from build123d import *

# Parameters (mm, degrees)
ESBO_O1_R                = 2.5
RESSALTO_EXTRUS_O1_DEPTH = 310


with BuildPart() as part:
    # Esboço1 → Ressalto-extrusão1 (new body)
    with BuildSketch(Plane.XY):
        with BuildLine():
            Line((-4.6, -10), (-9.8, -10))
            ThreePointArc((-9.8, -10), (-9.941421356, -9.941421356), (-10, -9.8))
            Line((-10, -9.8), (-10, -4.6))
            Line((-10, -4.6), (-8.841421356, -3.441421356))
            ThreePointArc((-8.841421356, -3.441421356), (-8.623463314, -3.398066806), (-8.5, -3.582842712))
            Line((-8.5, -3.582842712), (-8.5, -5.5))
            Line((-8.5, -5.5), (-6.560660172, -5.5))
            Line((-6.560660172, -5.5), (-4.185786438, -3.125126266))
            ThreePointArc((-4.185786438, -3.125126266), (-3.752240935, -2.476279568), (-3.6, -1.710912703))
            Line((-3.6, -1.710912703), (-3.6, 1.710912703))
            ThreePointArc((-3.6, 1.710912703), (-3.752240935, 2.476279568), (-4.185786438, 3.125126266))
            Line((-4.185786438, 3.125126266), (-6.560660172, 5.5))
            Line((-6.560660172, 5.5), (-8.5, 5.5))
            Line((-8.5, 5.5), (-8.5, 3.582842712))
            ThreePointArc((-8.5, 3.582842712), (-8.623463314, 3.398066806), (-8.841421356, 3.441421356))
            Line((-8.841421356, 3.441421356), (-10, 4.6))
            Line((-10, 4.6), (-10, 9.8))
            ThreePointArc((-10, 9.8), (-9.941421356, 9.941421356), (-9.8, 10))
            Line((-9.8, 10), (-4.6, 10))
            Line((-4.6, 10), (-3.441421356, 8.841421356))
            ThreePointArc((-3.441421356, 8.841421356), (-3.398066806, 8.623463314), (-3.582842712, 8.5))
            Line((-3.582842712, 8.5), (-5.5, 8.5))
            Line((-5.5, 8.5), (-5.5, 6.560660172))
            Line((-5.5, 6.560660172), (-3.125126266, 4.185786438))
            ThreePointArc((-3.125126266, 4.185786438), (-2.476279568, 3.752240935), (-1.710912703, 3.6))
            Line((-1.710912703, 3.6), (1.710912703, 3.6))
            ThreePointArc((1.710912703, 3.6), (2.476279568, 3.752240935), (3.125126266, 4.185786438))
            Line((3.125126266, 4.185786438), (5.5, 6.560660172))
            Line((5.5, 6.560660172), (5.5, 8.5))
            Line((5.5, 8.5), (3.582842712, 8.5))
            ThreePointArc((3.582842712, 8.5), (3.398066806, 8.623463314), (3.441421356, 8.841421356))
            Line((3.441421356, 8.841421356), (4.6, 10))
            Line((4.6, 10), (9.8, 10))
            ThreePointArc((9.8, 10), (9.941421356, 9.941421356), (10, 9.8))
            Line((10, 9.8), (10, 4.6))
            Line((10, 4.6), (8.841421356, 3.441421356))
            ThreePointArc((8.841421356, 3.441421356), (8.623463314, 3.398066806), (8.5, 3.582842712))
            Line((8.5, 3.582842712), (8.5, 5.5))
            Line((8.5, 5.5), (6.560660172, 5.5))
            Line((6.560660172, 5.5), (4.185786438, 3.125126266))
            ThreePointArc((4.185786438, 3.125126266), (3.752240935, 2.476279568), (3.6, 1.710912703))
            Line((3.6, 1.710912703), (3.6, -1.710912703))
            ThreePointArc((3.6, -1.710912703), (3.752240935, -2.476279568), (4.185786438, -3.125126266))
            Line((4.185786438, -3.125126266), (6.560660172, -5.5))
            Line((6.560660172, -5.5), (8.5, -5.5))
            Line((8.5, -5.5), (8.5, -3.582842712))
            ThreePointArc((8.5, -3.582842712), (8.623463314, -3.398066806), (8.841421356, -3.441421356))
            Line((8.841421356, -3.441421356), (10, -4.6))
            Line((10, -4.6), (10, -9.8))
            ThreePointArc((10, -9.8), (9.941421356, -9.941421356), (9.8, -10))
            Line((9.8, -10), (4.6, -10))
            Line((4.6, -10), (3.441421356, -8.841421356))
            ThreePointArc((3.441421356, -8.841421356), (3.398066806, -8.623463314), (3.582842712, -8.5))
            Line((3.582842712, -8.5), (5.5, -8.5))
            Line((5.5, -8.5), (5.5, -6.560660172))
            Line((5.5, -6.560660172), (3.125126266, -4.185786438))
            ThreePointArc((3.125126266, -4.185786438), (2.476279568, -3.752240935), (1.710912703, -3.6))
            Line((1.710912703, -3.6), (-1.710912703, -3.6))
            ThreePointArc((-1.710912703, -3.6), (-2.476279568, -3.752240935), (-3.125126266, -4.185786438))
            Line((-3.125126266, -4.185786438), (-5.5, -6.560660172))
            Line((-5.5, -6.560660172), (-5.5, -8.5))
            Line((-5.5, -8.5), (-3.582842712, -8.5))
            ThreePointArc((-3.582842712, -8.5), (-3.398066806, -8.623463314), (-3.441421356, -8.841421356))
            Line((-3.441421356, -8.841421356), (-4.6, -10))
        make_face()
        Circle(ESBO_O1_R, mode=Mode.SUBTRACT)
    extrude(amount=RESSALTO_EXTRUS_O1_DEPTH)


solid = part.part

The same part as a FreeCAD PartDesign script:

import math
import FreeCAD as App
import Part
import Sketcher
Q = App.Units.Quantity

doc = App.newDocument("Part")
params = doc.addObject("Spreadsheet::Sheet", "Params")
for row, (alias, value) in enumerate([
    ("sketch1_diameter", "5 mm"),
    ("sketch1_radius", "2 mm"),
    ("sketch1_radius2", "0.2 mm"),
    ("sketch1_width", "5.2 mm"),
    ("pad1_length", "310 mm"),
], start=1):
    params.set(f"A{row}", alias)
    params.set(f"B{row}", "=" + value)
    params.setAlias(f"B{row}", alias)

body = doc.addObject("PartDesign::Body", "Body")

# Sketch on XY plane
sketch1 = body.newObject("Sketcher::SketchObject", "Sketch")
sketch1.AttachmentSupport = (doc.getObject("XY_Plane"), [""])
sketch1.MapMode = "FlatFace"
sketch1.addGeometry([
    Part.LineSegment(App.Vector(-9.8, -10, 0), App.Vector(-4.6, -10, 0)),  # 0
    Part.LineSegment(App.Vector(-4.6, -10, 0), App.Vector(-3.44, -8.84, 0)),  # 1
    Part.ArcOfCircle(Part.Circle(App.Vector(-3.58, -8.7, 0), App.Vector(0, 0, 1), 0.2), math.radians(-45), math.radians(90)),  # 2
    Part.LineSegment(App.Vector(-3.58, -8.5, 0), App.Vector(-5.5, -8.5, 0)),  # 3
    Part.LineSegment(App.Vector(-5.5, -8.5, 0), App.Vector(-5.5, -6.56, 0)),  # 4
    Part.LineSegment(App.Vector(-5.5, -6.56, 0), App.Vector(-3.13, -4.19, 0)),  # 5
    Part.ArcOfCircle(Part.Circle(App.Vector(-1.71, -5.6, 0), App.Vector(0, 0, 1), 2), math.radians(90), math.radians(135)),  # 6
    Part.LineSegment(App.Vector(-1.71, -3.6, 0), App.Vector(1.71, -3.6, 0)),  # 7
    Part.ArcOfCircle(Part.Circle(App.Vector(1.71, -5.6, 0), App.Vector(0, 0, 1), 2), math.radians(45), math.radians(90)),  # 8
    Part.LineSegment(App.Vector(3.13, -4.19, 0), App.Vector(5.5, -6.56, 0)),  # 9
    Part.LineSegment(App.Vector(5.5, -6.56, 0), App.Vector(5.5, -8.5, 0)),  # 10
    Part.LineSegment(App.Vector(5.5, -8.5, 0), App.Vector(3.58, -8.5, 0)),  # 11
    Part.ArcOfCircle(Part.Circle(App.Vector(3.58, -8.7, 0), App.Vector(0, 0, 1), 0.2), math.radians(90), math.radians(225)),  # 12
    Part.LineSegment(App.Vector(3.44, -8.84, 0), App.Vector(4.6, -10, 0)),  # 13
    Part.LineSegment(App.Vector(4.6, -10, 0), App.Vector(9.8, -10, 0)),  # 14
    Part.ArcOfCircle(Part.Circle(App.Vector(9.8, -9.8, 0), App.Vector(0, 0, 1), 0.2), math.radians(-90), math.radians(0)),  # 15
    Part.LineSegment(App.Vector(10, -9.8, 0), App.Vector(10, -4.6, 0)),  # 16
    Part.LineSegment(App.Vector(10, -4.6, 0), App.Vector(8.84, -3.44, 0)),  # 17
    Part.ArcOfCircle(Part.Circle(App.Vector(8.7, -3.58, 0), App.Vector(0, 0, 1), 0.2), math.radians(45), math.radians(180)),  # 18
    Part.LineSegment(App.Vector(8.5, -3.58, 0), App.Vector(8.5, -5.5, 0)),  # 19
    Part.LineSegment(App.Vector(8.5, -5.5, 0), App.Vector(6.56, -5.5, 0)),  # 20
    Part.LineSegment(App.Vector(6.56, -5.5, 0), App.Vector(4.19, -3.13, 0)),  # 21
    Part.ArcOfCircle(Part.Circle(App.Vector(5.6, -1.71, 0), App.Vector(0, 0, 1), 2), math.radians(180), math.radians(225)),  # 22
    Part.LineSegment(App.Vector(3.6, -1.71, 0), App.Vector(3.6, 1.71, 0)),  # 23
    Part.ArcOfCircle(Part.Circle(App.Vector(5.6, 1.71, 0), App.Vector(0, 0, 1), 2), math.radians(135), math.radians(180)),  # 24
    Part.LineSegment(App.Vector(4.19, 3.13, 0), App.Vector(6.56, 5.5, 0)),  # 25
    Part.LineSegment(App.Vector(6.56, 5.5, 0), App.Vector(8.5, 5.5, 0)),  # 26
    Part.LineSegment(App.Vector(8.5, 5.5, 0), App.Vector(8.5, 3.58, 0)),  # 27
    Part.ArcOfCircle(Part.Circle(App.Vector(8.7, 3.58, 0), App.Vector(0, 0, 1), 0.2), math.radians(-180), math.radians(-45)),  # 28
    Part.LineSegment(App.Vector(8.84, 3.44, 0), App.Vector(10, 4.6, 0)),  # 29
    Part.LineSegment(App.Vector(10, 4.6, 0), App.Vector(10, 9.8, 0)),  # 30
    Part.ArcOfCircle(Part.Circle(App.Vector(9.8, 9.8, 0), App.Vector(0, 0, 1), 0.2), math.radians(0), math.radians(90)),  # 31
    Part.LineSegment(App.Vector(9.8, 10, 0), App.Vector(4.6, 10, 0)),  # 32
    Part.LineSegment(App.Vector(4.6, 10, 0), App.Vector(3.44, 8.84, 0)),  # 33
    Part.ArcOfCircle(Part.Circle(App.Vector(3.58, 8.7, 0), App.Vector(0, 0, 1), 0.2), math.radians(135), math.radians(270)),  # 34
    Part.LineSegment(App.Vector(3.58, 8.5, 0), App.Vector(5.5, 8.5, 0)),  # 35
    Part.LineSegment(App.Vector(5.5, 8.5, 0), App.Vector(5.5, 6.56, 0)),  # 36
    Part.LineSegment(App.Vector(5.5, 6.56, 0), App.Vector(3.13, 4.19, 0)),  # 37
    Part.ArcOfCircle(Part.Circle(App.Vector(1.71, 5.6, 0), App.Vector(0, 0, 1), 2), math.radians(-90), math.radians(-45)),  # 38
    Part.LineSegment(App.Vector(1.71, 3.6, 0), App.Vector(-1.71, 3.6, 0)),  # 39
    Part.ArcOfCircle(Part.Circle(App.Vector(-1.71, 5.6, 0), App.Vector(0, 0, 1), 2), math.radians(-135), math.radians(-90)),  # 40
    Part.LineSegment(App.Vector(-3.13, 4.19, 0), App.Vector(-5.5, 6.56, 0)),  # 41
    Part.LineSegment(App.Vector(-5.5, 6.56, 0), App.Vector(-5.5, 8.5, 0)),  # 42
    Part.LineSegment(App.Vector(-5.5, 8.5, 0), App.Vector(-3.58, 8.5, 0)),  # 43
    Part.ArcOfCircle(Part.Circle(App.Vector(-3.58, 8.7, 0), App.Vector(0, 0, 1), 0.2), math.radians(-90), math.radians(45)),  # 44
    Part.LineSegment(App.Vector(-3.44, 8.84, 0), App.Vector(-4.6, 10, 0)),  # 45
    Part.LineSegment(App.Vector(-4.6, 10, 0), App.Vector(-9.8, 10, 0)),  # 46
    Part.ArcOfCircle(Part.Circle(App.Vector(-9.8, 9.8, 0), App.Vector(0, 0, 1), 0.2), math.radians(90), math.radians(180)),  # 47
    Part.LineSegment(App.Vector(-10, 9.8, 0), App.Vector(-10, 4.6, 0)),  # 48
    Part.LineSegment(App.Vector(-10, 4.6, 0), App.Vector(-8.84, 3.44, 0)),  # 49
    Part.ArcOfCircle(Part.Circle(App.Vector(-8.7, 3.58, 0), App.Vector(0, 0, 1), 0.2), math.radians(-135), math.radians(0)),  # 50
    Part.LineSegment(App.Vector(-8.5, 3.58, 0), App.Vector(-8.5, 5.5, 0)),  # 51
    Part.LineSegment(App.Vector(-8.5, 5.5, 0), App.Vector(-6.56, 5.5, 0)),  # 52
    Part.LineSegment(App.Vector(-6.56, 5.5, 0), App.Vector(-4.19, 3.13, 0)),  # 53
    Part.ArcOfCircle(Part.Circle(App.Vector(-5.6, 1.71, 0), App.Vector(0, 0, 1), 2), math.radians(0), math.radians(45)),  # 54
    Part.LineSegment(App.Vector(-3.6, 1.71, 0), App.Vector(-3.6, -1.71, 0)),  # 55
    Part.ArcOfCircle(Part.Circle(App.Vector(-5.6, -1.71, 0), App.Vector(0, 0, 1), 2), math.radians(-45), math.radians(0)),  # 56
    Part.LineSegment(App.Vector(-4.19, -3.13, 0), App.Vector(-6.56, -5.5, 0)),  # 57
    Part.LineSegment(App.Vector(-6.56, -5.5, 0), App.Vector(-8.5, -5.5, 0)),  # 58
    Part.LineSegment(App.Vector(-8.5, -5.5, 0), App.Vector(-8.5, -3.58, 0)),  # 59
    Part.ArcOfCircle(Part.Circle(App.Vector(-8.7, -3.58, 0), App.Vector(0, 0, 1), 0.2), math.radians(0), math.radians(135)),  # 60
    Part.LineSegment(App.Vector(-8.84, -3.44, 0), App.Vector(-10, -4.6, 0)),  # 61
    Part.LineSegment(App.Vector(-10, -4.6, 0), App.Vector(-10, -9.8, 0)),  # 62
    Part.ArcOfCircle(Part.Circle(App.Vector(-9.8, -9.8, 0), App.Vector(0, 0, 1), 0.2), math.radians(-180), math.radians(-90)),  # 63
    Part.Circle(App.Vector(0, 0, 0), App.Vector(0, 0, 1), 2.5),  # 64
], False)
sketch1.addConstraint([
    Sketcher.Constraint("Coincident", 0, 2, 1, 1),
    Sketcher.Constraint("Tangent", 1, 2, 2, 1),
    Sketcher.Constraint("Tangent", 2, 2, 3, 1),
    Sketcher.Constraint("Coincident", 3, 2, 4, 1),
    Sketcher.Constraint("Coincident", 4, 2, 5, 1),
    Sketcher.Constraint("Tangent", 5, 2, 6, 2),
    Sketcher.Constraint("Tangent", 6, 1, 7, 1),
    Sketcher.Constraint("Tangent", 7, 2, 8, 2),
    Sketcher.Constraint("Tangent", 8, 1, 9, 1),
    Sketcher.Constraint("Coincident", 9, 2, 10, 1),
    Sketcher.Constraint("Coincident", 10, 2, 11, 1),
    Sketcher.Constraint("Tangent", 11, 2, 12, 1),
    Sketcher.Constraint("Tangent", 12, 2, 13, 1),
    Sketcher.Constraint("Coincident", 13, 2, 14, 1),
    Sketcher.Constraint("Tangent", 14, 2, 15, 1),
    Sketcher.Constraint("Tangent", 15, 2, 16, 1),
    Sketcher.Constraint("Coincident", 16, 2, 17, 1),
    Sketcher.Constraint("Tangent", 17, 2, 18, 1),
    Sketcher.Constraint("Tangent", 18, 2, 19, 1),
    Sketcher.Constraint("Coincident", 19, 2, 20, 1),
    Sketcher.Constraint("Coincident", 20, 2, 21, 1),
    Sketcher.Constraint("Tangent", 21, 2, 22, 2),
    Sketcher.Constraint("Tangent", 22, 1, 23, 1),
    Sketcher.Constraint("Tangent", 23, 2, 24, 2),
    Sketcher.Constraint("Tangent", 24, 1, 25, 1),
    Sketcher.Constraint("Coincident", 25, 2, 26, 1),
    Sketcher.Constraint("Coincident", 26, 2, 27, 1),
    Sketcher.Constraint("Tangent", 27, 2, 28, 1),
    Sketcher.Constraint("Tangent", 28, 2, 29, 1),
    Sketcher.Constraint("Coincident", 29, 2, 30, 1),
    Sketcher.Constraint("Tangent", 30, 2, 31, 1),
    Sketcher.Constraint("Tangent", 31, 2, 32, 1),
    Sketcher.Constraint("Coincident", 32, 2, 33, 1),
    Sketcher.Constraint("Tangent", 33, 2, 34, 1),
    Sketcher.Constraint("Tangent", 34, 2, 35, 1),
    Sketcher.Constraint("Coincident", 35, 2, 36, 1),
    Sketcher.Constraint("Coincident", 36, 2, 37, 1),
    Sketcher.Constraint("Tangent", 37, 2, 38, 2),
    Sketcher.Constraint("Tangent", 38, 1, 39, 1),
    Sketcher.Constraint("Tangent", 39, 2, 40, 2),
    Sketcher.Constraint("Tangent", 40, 1, 41, 1),
    Sketcher.Constraint("Coincident", 41, 2, 42, 1),
    Sketcher.Constraint("Coincident", 42, 2, 43, 1),
    Sketcher.Constraint("Tangent", 43, 2, 44, 1),
    Sketcher.Constraint("Tangent", 44, 2, 45, 1),
    Sketcher.Constraint("Coincident", 45, 2, 46, 1),
    Sketcher.Constraint("Tangent", 46, 2, 47, 1),
    Sketcher.Constraint("Tangent", 47, 2, 48, 1),
    Sketcher.Constraint("Coincident", 48, 2, 49, 1),
    Sketcher.Constraint("Tangent", 49, 2, 50, 1),
    Sketcher.Constraint("Tangent", 50, 2, 51, 1),
    Sketcher.Constraint("Coincident", 51, 2, 52, 1),
    Sketcher.Constraint("Coincident", 52, 2, 53, 1),
    Sketcher.Constraint("Tangent", 53, 2, 54, 2),
    Sketcher.Constraint("Tangent", 54, 1, 55, 1),
    Sketcher.Constraint("Tangent", 55, 2, 56, 2),
    Sketcher.Constraint("Tangent", 56, 1, 57, 1),
    Sketcher.Constraint("Coincident", 57, 2, 58, 1),
    Sketcher.Constraint("Coincident", 58, 2, 59, 1),
    Sketcher.Constraint("Tangent", 59, 2, 60, 1),
    Sketcher.Constraint("Tangent", 60, 2, 61, 1),
    Sketcher.Constraint("Coincident", 61, 2, 62, 1),
    Sketcher.Constraint("Tangent", 62, 2, 63, 1),
    Sketcher.Constraint("Tangent", 63, 2, 0, 1),
    Sketcher.Constraint("Horizontal", 0),
    Sketcher.Constraint("Horizontal", 3),
    Sketcher.Constraint("Vertical", 4),
    Sketcher.Constraint("Horizontal", 7),
    Sketcher.Constraint("Vertical", 10),
    Sketcher.Constraint("Horizontal", 11),
    Sketcher.Constraint("Horizontal", 14),
    Sketcher.Constraint("Vertical", 16),
    Sketcher.Constraint("Vertical", 19),
    Sketcher.Constraint("Horizontal", 20),
    Sketcher.Constraint("Vertical", 23),
    Sketcher.Constraint("Horizontal", 26),
    Sketcher.Constraint("Vertical", 27),
    Sketcher.Constraint("Vertical", 30),
    Sketcher.Constraint("Horizontal", 32),
    Sketcher.Constraint("Horizontal", 35),
    Sketcher.Constraint("Vertical", 36),
    Sketcher.Constraint("Horizontal", 39),
    Sketcher.Constraint("Vertical", 42),
    Sketcher.Constraint("Horizontal", 43),
    Sketcher.Constraint("Horizontal", 46),
    Sketcher.Constraint("Vertical", 48),
    Sketcher.Constraint("Vertical", 51),
    Sketcher.Constraint("Horizontal", 52),
    Sketcher.Constraint("Vertical", 55),
    Sketcher.Constraint("Horizontal", 58),
    Sketcher.Constraint("Vertical", 59),
    Sketcher.Constraint("Vertical", 62),
    Sketcher.Constraint("Coincident", 64, 3, -1, 1),
    Sketcher.Constraint("Equal", 6, 8),
    Sketcher.Constraint("Equal", 2, 12),
    Sketcher.Constraint("Equal", 12, 15),
    Sketcher.Constraint("Equal", 15, 18),
    Sketcher.Constraint("Equal", 8, 22),
    Sketcher.Constraint("Equal", 22, 24),
    Sketcher.Constraint("Equal", 18, 28),
    Sketcher.Constraint("Equal", 28, 31),
    Sketcher.Constraint("Equal", 31, 34),
    Sketcher.Constraint("Equal", 24, 38),
    Sketcher.Constraint("Equal", 38, 40),
    Sketcher.Constraint("Equal", 34, 44),
    Sketcher.Constraint("Equal", 44, 47),
    Sketcher.Constraint("Equal", 47, 50),
    Sketcher.Constraint("Equal", 40, 54),
    Sketcher.Constraint("Equal", 54, 56),
    Sketcher.Constraint("Equal", 50, 60),
    Sketcher.Constraint("Equal", 60, 63),
    Sketcher.Constraint("Symmetric", 2, 3, 34, 3, -1, 1),
    Sketcher.Constraint("Symmetric", 6, 3, 38, 3, -1, 1),
    Sketcher.Constraint("Symmetric", 12, 3, 44, 3, -1, 1),
    Sketcher.Constraint("Symmetric", 15, 3, 47, 3, -1, 1),
    Sketcher.Constraint("Symmetric", 18, 3, 50, 3, -1, 1),
    Sketcher.Constraint("Symmetric", 22, 3, 54, 3, -1, 1),
    Sketcher.Constraint("Symmetric", 28, 3, 60, 3, -1, 1),
    Sketcher.Constraint("Symmetric", 31, 3, 63, 3, -1, 1),
    Sketcher.Constraint("Symmetric", 4, 2, 36, 2, -1, 1),
    Sketcher.Constraint("Symmetric", 8, 1, 40, 1, -1, 1),
    Sketcher.Constraint("Symmetric", 20, 2, 52, 2, -1, 1),
    Sketcher.Constraint("Symmetric", 24, 1, 56, 1, -1, 1),
    Sketcher.Constraint("Symmetric", 2, 3, 12, 3, -2),
    Sketcher.Constraint("Symmetric", 31, 3, 47, 3, -2),
    Sketcher.Constraint("Symmetric", 28, 3, 50, 3, -2),
    Sketcher.Constraint("Symmetric", 5, 2, 8, 1, -2),
    Sketcher.Constraint("Symmetric", 25, 2, 52, 2, -2),
    Sketcher.Constraint("Parallel", 1, 5),
    Sketcher.Constraint("Perpendicular", 5, 9),
    Sketcher.Constraint("Parallel", 9, 13),
    Sketcher.Constraint("Parallel", 13, 17),
    Sketcher.Constraint("Parallel", 17, 21),
    Sketcher.Constraint("Perpendicular", 21, 25),
    Sketcher.Constraint("Parallel", 25, 29),
    Sketcher.Constraint("Parallel", 29, 33),
    Sketcher.Constraint("Parallel", 41, 45),
    Sketcher.Constraint("Parallel", 45, 49),
    Sketcher.Constraint("Parallel", 57, 61),
    Sketcher.Constraint("Horizontal", 4, 2, 9, 2),
    Sketcher.Constraint("Horizontal", 36, 2, 41, 2),
    Sketcher.Constraint("Horizontal", 20, 2, 57, 2),
    Sketcher.Constraint("Equal", 58, 4),
    Sketcher.Constraint("Equal", 46, 16),
    Sketcher.Constraint("Equal", 43, 19),
    Sketcher.Constraint("Equal", 39, 23),
    Sketcher.Constraint("Equal", 13, 17),
    Sketcher.Constraint("Equal", 9, 21),
    Sketcher.Constraint("Diameter", 64, Q("5 mm")),
    Sketcher.Constraint("Radius", 6, Q("2 mm")),
    Sketcher.Constraint("Radius", 2, Q("0.2 mm")),
    Sketcher.Constraint("DistanceX", 0, 1, 0, 2, Q("5.2 mm")),
    Sketcher.Constraint("DistanceY", 0, 2, -1, 1, Q("10 mm")),
    Sketcher.Constraint("DistanceY", 2, 3, -1, 1, Q("8.7 mm")),
    Sketcher.Constraint("DistanceY", 6, 3, -1, 1, Q("5.6 mm")),
    Sketcher.Constraint("DistanceX", 3, 2, -1, 1, Q("5.5 mm")),
    Sketcher.Constraint("DistanceX", 20, 2, 20, 1, Q("1.93934 mm")),
])
sketch1.setExpression("Constraints[148]", "Params.sketch1_diameter")
sketch1.setExpression("Constraints[149]", "Params.sketch1_radius")
sketch1.setExpression("Constraints[150]", "Params.sketch1_radius2")
sketch1.setExpression("Constraints[151]", "Params.sketch1_width")
pad1 = body.newObject("PartDesign::Pad", "Pad")
pad1.Profile = sketch1
pad1.setExpression("Length", "Params.pad1_length")

doc.recompute()
